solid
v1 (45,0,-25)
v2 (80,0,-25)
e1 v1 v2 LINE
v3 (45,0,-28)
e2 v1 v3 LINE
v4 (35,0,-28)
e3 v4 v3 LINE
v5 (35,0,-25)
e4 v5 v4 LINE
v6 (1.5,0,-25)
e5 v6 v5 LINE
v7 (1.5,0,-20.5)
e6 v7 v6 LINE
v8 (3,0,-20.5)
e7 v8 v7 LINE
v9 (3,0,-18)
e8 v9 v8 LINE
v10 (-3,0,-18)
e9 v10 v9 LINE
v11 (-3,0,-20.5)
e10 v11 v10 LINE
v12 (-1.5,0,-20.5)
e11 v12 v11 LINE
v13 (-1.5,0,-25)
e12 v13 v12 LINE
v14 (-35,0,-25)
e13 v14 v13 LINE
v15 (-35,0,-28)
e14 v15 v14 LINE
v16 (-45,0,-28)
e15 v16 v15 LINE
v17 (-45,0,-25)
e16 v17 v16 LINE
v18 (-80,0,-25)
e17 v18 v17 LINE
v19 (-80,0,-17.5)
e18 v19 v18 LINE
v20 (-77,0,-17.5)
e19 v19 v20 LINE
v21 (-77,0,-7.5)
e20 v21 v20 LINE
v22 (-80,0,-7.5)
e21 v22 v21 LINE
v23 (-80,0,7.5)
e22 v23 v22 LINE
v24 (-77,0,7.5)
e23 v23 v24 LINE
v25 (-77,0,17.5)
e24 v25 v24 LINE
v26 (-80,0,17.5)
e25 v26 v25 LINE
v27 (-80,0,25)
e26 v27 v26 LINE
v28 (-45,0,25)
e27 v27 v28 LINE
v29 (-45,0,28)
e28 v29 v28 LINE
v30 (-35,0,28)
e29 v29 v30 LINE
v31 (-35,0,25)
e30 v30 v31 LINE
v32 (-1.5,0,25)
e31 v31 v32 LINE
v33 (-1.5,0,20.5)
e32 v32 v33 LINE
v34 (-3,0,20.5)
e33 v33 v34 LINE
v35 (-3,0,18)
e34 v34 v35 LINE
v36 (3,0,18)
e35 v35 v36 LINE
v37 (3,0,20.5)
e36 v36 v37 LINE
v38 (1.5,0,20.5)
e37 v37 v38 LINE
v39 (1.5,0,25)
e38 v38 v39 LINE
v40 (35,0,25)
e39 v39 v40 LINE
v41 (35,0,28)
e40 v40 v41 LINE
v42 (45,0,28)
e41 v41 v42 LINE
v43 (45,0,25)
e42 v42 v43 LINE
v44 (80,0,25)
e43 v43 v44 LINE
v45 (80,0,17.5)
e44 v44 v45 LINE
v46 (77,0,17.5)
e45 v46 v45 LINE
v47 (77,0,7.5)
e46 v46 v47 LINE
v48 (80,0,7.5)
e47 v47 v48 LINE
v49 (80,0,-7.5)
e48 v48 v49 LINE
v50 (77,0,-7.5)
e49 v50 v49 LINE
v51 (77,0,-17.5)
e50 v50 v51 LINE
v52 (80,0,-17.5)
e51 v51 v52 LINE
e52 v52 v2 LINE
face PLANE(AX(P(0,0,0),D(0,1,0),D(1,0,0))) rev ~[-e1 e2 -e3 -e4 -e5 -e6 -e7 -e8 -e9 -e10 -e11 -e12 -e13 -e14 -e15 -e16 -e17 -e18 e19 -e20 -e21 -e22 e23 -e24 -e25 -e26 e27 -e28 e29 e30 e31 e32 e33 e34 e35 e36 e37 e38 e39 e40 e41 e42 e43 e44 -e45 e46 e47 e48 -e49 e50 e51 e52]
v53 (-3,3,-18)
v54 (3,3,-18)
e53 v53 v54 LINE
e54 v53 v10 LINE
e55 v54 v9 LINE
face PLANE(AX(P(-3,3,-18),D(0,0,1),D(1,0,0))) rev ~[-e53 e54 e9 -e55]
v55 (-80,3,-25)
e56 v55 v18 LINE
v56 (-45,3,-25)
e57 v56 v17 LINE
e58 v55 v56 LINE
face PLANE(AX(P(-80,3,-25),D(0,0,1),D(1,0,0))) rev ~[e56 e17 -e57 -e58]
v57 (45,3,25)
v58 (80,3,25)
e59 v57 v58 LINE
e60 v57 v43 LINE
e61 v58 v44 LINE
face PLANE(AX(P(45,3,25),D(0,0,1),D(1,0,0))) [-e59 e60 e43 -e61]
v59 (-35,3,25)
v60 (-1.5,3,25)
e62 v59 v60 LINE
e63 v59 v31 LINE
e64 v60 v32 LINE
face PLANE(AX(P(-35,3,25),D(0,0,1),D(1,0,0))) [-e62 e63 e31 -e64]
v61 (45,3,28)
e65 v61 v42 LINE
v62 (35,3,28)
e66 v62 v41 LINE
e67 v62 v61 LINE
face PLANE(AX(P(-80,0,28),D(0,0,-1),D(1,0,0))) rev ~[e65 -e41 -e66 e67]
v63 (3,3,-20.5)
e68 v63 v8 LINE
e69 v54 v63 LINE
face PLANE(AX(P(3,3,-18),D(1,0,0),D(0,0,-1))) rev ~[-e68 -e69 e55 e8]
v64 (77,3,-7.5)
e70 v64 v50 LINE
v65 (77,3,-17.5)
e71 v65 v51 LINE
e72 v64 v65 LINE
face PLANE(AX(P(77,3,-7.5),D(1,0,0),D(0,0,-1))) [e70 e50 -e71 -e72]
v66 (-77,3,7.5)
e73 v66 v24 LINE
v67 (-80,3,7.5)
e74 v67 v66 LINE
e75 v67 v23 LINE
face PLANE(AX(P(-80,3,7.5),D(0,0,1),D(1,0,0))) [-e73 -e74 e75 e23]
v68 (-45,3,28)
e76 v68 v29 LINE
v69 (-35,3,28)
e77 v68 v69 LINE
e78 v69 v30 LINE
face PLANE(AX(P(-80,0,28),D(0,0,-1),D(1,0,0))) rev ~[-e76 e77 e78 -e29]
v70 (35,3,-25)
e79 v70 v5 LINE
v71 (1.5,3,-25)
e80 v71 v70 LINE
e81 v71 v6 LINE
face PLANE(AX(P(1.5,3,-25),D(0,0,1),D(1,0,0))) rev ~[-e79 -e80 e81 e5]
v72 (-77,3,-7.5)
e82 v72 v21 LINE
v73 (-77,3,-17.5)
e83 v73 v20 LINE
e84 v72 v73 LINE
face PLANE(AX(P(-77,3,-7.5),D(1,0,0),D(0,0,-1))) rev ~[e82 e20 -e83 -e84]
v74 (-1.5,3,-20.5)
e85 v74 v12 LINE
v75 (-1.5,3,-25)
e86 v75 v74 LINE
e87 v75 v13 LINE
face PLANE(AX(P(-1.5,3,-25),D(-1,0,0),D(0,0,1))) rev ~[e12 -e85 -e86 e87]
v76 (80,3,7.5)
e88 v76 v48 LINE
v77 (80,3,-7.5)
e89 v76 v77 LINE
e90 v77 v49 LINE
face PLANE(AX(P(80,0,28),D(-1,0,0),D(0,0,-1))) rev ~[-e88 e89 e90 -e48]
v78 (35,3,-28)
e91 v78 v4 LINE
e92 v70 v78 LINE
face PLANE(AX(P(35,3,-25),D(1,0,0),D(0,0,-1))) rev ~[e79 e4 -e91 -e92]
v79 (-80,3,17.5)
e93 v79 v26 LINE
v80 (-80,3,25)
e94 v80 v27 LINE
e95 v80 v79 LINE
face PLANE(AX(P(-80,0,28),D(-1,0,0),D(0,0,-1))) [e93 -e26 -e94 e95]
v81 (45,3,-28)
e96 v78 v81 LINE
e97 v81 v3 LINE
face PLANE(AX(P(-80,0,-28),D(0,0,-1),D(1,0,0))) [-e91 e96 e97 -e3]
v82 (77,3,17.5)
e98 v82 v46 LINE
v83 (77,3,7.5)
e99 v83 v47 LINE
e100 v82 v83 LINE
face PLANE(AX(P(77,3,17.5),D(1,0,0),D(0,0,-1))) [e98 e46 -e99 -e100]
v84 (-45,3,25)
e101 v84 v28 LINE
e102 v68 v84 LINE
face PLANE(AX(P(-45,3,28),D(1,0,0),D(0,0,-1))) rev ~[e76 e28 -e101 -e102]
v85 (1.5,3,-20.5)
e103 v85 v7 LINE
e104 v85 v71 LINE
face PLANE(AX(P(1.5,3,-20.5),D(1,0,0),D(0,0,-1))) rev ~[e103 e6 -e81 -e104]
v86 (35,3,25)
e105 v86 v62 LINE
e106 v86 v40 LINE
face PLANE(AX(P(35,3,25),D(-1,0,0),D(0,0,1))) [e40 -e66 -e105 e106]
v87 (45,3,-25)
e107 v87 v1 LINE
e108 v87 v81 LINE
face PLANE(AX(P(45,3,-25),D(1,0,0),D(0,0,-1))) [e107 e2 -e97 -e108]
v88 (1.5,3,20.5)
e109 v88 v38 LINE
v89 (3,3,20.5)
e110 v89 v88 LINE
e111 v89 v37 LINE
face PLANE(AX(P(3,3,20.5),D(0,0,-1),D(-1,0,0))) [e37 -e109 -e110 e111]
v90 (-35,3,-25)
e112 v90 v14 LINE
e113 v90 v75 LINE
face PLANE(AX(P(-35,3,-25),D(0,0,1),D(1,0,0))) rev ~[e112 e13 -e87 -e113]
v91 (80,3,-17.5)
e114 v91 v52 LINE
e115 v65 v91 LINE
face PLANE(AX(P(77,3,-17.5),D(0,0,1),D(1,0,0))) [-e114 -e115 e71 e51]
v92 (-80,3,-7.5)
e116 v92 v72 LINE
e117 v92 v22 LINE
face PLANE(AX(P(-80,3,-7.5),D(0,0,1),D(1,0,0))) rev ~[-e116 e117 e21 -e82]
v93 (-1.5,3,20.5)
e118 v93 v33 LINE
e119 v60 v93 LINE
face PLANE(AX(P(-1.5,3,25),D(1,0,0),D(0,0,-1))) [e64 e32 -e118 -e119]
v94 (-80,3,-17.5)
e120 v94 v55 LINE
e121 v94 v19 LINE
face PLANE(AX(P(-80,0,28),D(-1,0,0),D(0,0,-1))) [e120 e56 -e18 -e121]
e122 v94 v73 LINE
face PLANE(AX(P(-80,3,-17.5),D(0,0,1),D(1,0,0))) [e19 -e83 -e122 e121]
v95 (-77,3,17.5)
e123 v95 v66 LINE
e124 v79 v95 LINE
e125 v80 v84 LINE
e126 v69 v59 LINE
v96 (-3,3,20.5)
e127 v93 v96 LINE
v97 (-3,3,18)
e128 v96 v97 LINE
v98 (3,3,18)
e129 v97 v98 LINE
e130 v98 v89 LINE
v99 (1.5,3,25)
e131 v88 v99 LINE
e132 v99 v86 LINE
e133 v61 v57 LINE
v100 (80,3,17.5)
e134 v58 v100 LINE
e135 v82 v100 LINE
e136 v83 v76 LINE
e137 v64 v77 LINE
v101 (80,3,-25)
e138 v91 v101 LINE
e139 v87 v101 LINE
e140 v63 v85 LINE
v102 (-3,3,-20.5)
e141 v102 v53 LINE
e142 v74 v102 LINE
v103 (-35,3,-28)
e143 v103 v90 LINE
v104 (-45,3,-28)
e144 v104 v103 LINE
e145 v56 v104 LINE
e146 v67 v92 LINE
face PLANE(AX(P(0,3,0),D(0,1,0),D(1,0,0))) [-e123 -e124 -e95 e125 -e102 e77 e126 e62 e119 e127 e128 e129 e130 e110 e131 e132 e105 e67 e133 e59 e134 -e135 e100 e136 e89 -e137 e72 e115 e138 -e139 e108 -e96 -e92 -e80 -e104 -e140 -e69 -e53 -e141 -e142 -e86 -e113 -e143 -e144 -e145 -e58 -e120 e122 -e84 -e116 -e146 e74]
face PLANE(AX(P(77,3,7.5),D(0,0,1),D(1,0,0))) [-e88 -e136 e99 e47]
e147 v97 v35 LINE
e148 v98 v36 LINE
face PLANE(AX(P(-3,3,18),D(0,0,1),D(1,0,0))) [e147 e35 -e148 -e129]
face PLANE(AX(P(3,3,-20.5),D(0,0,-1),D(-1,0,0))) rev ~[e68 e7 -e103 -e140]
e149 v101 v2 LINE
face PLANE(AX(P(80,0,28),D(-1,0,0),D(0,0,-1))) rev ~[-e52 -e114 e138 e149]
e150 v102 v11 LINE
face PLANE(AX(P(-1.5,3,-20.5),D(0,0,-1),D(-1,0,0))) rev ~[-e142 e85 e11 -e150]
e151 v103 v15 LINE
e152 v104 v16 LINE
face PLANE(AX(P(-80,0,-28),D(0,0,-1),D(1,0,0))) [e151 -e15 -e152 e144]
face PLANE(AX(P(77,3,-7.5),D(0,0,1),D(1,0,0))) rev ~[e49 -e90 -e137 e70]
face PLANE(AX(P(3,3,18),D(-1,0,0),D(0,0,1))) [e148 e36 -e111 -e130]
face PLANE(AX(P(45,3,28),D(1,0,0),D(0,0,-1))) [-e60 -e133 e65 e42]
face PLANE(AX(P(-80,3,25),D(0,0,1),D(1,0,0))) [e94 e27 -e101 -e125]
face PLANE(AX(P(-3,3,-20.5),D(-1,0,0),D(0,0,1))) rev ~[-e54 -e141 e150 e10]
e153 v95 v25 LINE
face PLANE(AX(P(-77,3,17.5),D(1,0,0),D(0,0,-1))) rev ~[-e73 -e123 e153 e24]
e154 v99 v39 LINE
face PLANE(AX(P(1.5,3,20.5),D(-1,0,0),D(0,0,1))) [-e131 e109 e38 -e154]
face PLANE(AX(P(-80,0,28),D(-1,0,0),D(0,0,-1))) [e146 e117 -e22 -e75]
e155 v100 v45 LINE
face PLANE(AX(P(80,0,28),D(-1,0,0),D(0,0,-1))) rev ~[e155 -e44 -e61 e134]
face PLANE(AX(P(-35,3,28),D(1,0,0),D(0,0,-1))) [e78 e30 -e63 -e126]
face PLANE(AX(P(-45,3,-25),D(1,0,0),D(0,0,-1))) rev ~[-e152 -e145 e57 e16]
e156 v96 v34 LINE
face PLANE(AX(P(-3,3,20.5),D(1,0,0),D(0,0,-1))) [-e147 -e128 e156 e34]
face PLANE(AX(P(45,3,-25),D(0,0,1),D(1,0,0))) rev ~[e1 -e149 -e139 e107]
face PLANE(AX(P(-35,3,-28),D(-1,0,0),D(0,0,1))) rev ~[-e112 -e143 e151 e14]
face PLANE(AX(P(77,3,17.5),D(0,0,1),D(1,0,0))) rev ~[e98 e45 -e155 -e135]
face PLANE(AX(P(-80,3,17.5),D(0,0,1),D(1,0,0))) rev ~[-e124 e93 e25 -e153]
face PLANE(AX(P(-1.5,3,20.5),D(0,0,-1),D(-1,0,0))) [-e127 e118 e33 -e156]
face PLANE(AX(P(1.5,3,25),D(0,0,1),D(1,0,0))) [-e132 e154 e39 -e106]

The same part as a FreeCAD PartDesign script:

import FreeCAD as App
import Part
import Sketcher

V = App.Vector

doc = App.newDocument("Part")
params = doc.addObject("Spreadsheet::Sheet", "Params")
for row, (alias, value) in enumerate([
    ("sketch1_width", "160 mm"),
    ("sketch1_height", "56 mm"),
    ("pad1_length", "3 mm"),
    ("sketch2_width", "3 mm"),
    ("sketch2_width2", "6 mm"),
    ("sketch2_width3", "70 mm"),
    ("sketch2_width4", "35 mm"),
    ("sketch2_height", "10 mm"),
], start=1):
    params.set(f"A{row}", alias)
    params.set(f"B{row}", "=" + value)
    params.setAlias(f"B{row}", alias)

body = doc.addObject("PartDesign::Body", "Body")

# Sketch on XZ plane
sketch1 = body.newObject("Sketcher::SketchObject", "Sketch")
sketch1.AttachmentSupport = (doc.getObject("XZ_Plane"), [""])
sketch1.MapMode = "FlatFace"
sketch1.addGeometry([
    Part.LineSegment(V(-80, -28, 0), V(-80, 28, 0)),
    Part.LineSegment(V(-80, 28, 0), V(80, 28, 0)),
    Part.LineSegment(V(80, 28, 0), V(80, -28, 0)),
    Part.LineSegment(V(80, -28, 0), V(-80, -28, 0)),
], False)
sketch1.addConstraint([
    Sketcher.Constraint("Coincident", 0, 2, 1, 1),
    Sketcher.Constraint("Coincident", 1, 2, 2, 1),
    Sketcher.Constraint("Coincident", 2, 2, 3, 1),
    Sketcher.Constraint("Coincident", 3, 2, 0, 1),
    Sketcher.Constraint("Vertical", 0),
    Sketcher.Constraint("Horizontal", 1),
    Sketcher.Constraint("Vertical", 2),
    Sketcher.Constraint("Horizontal", 3),
    Sketcher.Constraint("Symmetric", 0, 2, 2, 2, -1, 1),
    Sketcher.Constraint("DistanceX", 1, 1, 1, 2, 160.0),
    Sketcher.Constraint("DistanceY", 0, 1, 0, 2, 56.0),
])
sketch1.setExpression("Constraints[9]", "Params.sketch1_width")
sketch1.setExpression("Constraints[10]", "Params.sketch1_height")
pad1 = body.newObject("PartDesign::Pad", "Pad")
pad1.Profile = sketch1
pad1.setExpression("Length", "Params.pad1_length")
pad1.Reversed = True

# Sketch on XZ plane
sketch2 = body.newObject("Sketcher::SketchObject", "Sketch001")
sketch2.AttachmentSupport = (doc.getObject("XZ_Plane"), [""])
sketch2.MapMode = "FlatFace"
sketch2.AttachmentOffset = App.Placement(V(0, 0, -3), App.Rotation())
sketch2.addGeometry([
    Part.LineSegment(V(-80, -17.5, 0), V(-80, -7.5, 0)),  # 0
    Part.LineSegment(V(-80, -7.5, 0), V(-77, -7.5, 0)),  # 1
    Part.LineSegment(V(-77, -7.5, 0), V(-77, -17.5, 0)),  # 2
    Part.LineSegment(V(-77, -17.5, 0), V(-80, -17.5, 0)),  # 3
    Part.LineSegment(V(-35, -28, 0), V(-35, -25, 0)),  # 4
    Part.LineSegment(V(-35, -25, 0), V(-1.5, -25, 0)),  # 5
    Part.LineSegment(V(-1.5, -25, 0), V(-1.5, -20.5, 0)),  # 6
    Part.LineSegment(V(-1.5, -20.5, 0), V(-3, -20.5, 0)),  # 7
    Part.LineSegment(V(-3, -20.5, 0), V(-3, -18, 0)),  # 8
    Part.LineSegment(V(-3, -18, 0), V(3, -18, 0)),  # 9
    Part.LineSegment(V(3, -18, 0), V(3, -20.5, 0)),  # 10
    Part.LineSegment(V(3, -20.5, 0), V(1.5, -20.5, 0)),  # 11
    Part.LineSegment(V(1.5, -20.5, 0), V(1.5, -25, 0)),  # 12
    Part.LineSegment(V(1.5, -25, 0), V(35, -25, 0)),  # 13
    Part.LineSegment(V(35, -25, 0), V(35, -28, 0)),  # 14
    Part.LineSegment(V(35, -28, 0), V(-35, -28, 0)),  # 15
    Part.LineSegment(V(-80, -28, 0), V(-80, -25, 0)),  # 16
    Part.LineSegment(V(-80, -25, 0), V(-45, -25, 0)),  # 17
    Part.LineSegment(V(-45, -25, 0), V(-45, -28, 0)),  # 18
    Part.LineSegment(V(-45, -28, 0), V(-80, -28, 0)),  # 19
    Part.LineSegment(V(45, -28, 0), V(45, -25, 0)),  # 20
    Part.LineSegment(V(45, -25, 0), V(80, -25, 0)),  # 21
    Part.LineSegment(V(80, -25, 0), V(80, -28, 0)),  # 22
    Part.LineSegment(V(80, -28, 0), V(45, -28, 0)),  # 23
    Part.LineSegment(V(77, -17.5, 0), V(77, -7.5, 0)),  # 24
    Part.LineSegment(V(77, -7.5, 0), V(80, -7.5, 0)),  # 25
    Part.LineSegment(V(80, -7.5, 0), V(80, -17.5, 0)),  # 26
    Part.LineSegment(V(80, -17.5, 0), V(77, -17.5, 0)),  # 27
    Part.LineSegment(V(77, 7.5, 0), V(77, 17.5, 0)),  # 28
    Part.LineSegment(V(77, 17.5, 0), V(80, 17.5, 0)),  # 29
    Part.LineSegment(V(80, 17.5, 0), V(80, 7.5, 0)),  # 30
    Part.LineSegment(V(80, 7.5, 0), V(77, 7.5, 0)),  # 31
    Part.LineSegment(V(45, 25, 0), V(45, 28, 0)),  # 32
    Part.LineSegment(V(45, 28, 0), V(80, 28, 0)),  # 33
    Part.LineSegment(V(80, 28, 0), V(80, 25, 0)),  # 34
    Part.LineSegment(V(80, 25, 0), V(45, 25, 0)),  # 35
    Part.LineSegment(V(-35, 28, 0), V(35, 28, 0)),  # 36
    Part.LineSegment(V(35, 28, 0), V(35, 25, 0)),  # 37
    Part.LineSegment(V(35, 25, 0), V(1.5, 25, 0)),  # 38
    Part.LineSegment(V(1.5, 25, 0), V(1.5, 20.5, 0)),  # 39
    Part.LineSegment(V(1.5, 20.5, 0), V(3, 20.5, 0)),  # 40
    Part.LineSegment(V(3, 20.5, 0), V(3, 18, 0)),  # 41
    Part.LineSegment(V(3, 18, 0), V(-3, 18, 0)),  # 42
    Part.LineSegment(V(-3, 18, 0), V(-3, 20.5, 0)),  # 43
    Part.LineSegment(V(-3, 20.5, 0), V(-1.5, 20.5, 0)),  # 44
    Part.LineSegment(V(-1.5, 20.5, 0), V(-1.5, 25, 0)),  # 45
    Part.LineSegment(V(-1.5, 25, 0), V(-35, 25, 0)),  # 46
    Part.LineSegment(V(-35, 25, 0), V(-35, 28, 0)),  # 47
    Part.LineSegment(V(-80, 25, 0), V(-80, 28, 0)),  # 48
    Part.LineSegment(V(-80, 28, 0), V(-45, 28, 0)),  # 49
    Part.LineSegment(V(-45, 28, 0), V(-45, 25, 0)),  # 50
    Part.LineSegment(V(-45, 25, 0), V(-80, 25, 0)),  # 51
    Part.LineSegment(V(-80, 7.5, 0), V(-80, 17.5, 0)),  # 52
    Part.LineSegment(V(-80, 17.5, 0), V(-77, 17.5, 0)),  # 53
    Part.LineSegment(V(-77, 17.5, 0), V(-77, 7.5, 0)),  # 54
    Part.LineSegment(V(-77, 7.5, 0), V(-80, 7.5, 0)),  # 55
], False)
sketch2.addConstraint([
    Sketcher.Constraint("Coincident", 0, 2, 1, 1),
    Sketcher.Constraint("Coincident", 1, 2, 2, 1),
    Sketcher.Constraint("Coincident", 2, 2, 3, 1),
    Sketcher.Constraint("Coincident", 3, 2, 0, 1),
    Sketcher.Constraint("Coincident", 4, 2, 5, 1),
    Sketcher.Constraint("Coincident", 5, 2, 6, 1),
    Sketcher.Constraint("Coincident", 6, 2, 7, 1),
    Sketcher.Constraint("Coincident", 7, 2, 8, 1),
    Sketcher.Constraint("Coincident", 8, 2, 9, 1),
    Sketcher.Constraint("Coincident", 9, 2, 10, 1),
    Sketcher.Constraint("Coincident", 10, 2, 11, 1),
    Sketcher.Constraint("Coincident", 11, 2, 12, 1),
    Sketcher.Constraint("Coincident", 12, 2, 13, 1),
    Sketcher.Constraint("Coincident", 13, 2, 14, 1),
    Sketcher.Constraint("Coincident", 14, 2, 15, 1),
    Sketcher.Constraint("Coincident", 15, 2, 4, 1),
    Sketcher.Constraint("Coincident", 16, 2, 17, 1),
    Sketcher.Constraint("Coincident", 17, 2, 18, 1),
    Sketcher.Constraint("Coincident", 18, 2, 19, 1),
    Sketcher.Constraint("Coincident", 19, 2, 16, 1),
    Sketcher.Constraint("Coincident", 20, 2, 21, 1),
    Sketcher.Constraint("Coincident", 21, 2, 22, 1),
    Sketcher.Constraint("Coincident", 22, 2, 23, 1),
    Sketcher.Constraint("Coincident", 23, 2, 20, 1),
    Sketcher.Constraint("Coincident", 24, 2, 25, 1),
    Sketcher.Constraint("Coincident", 25, 2, 26, 1),
    Sketcher.Constraint("Coincident", 26, 2, 27, 1),
    Sketcher.Constraint("Coincident", 27, 2, 24, 1),
    Sketcher.Constraint("Coincident", 28, 2, 29, 1),
    Sketcher.Constraint("Coincident", 29, 2, 30, 1),
    Sketcher.Constraint("Coincident", 30, 2, 31, 1),
    Sketcher.Constraint("Coincident", 31, 2, 28, 1),
    Sketcher.Constraint("Coincident", 32, 2, 33, 1),
    Sketcher.Constraint("Coincident", 33, 2, 34, 1),
    Sketcher.Constraint("Coincident", 34, 2, 35, 1),
    Sketcher.Constraint("Coincident", 35, 2, 32, 1),
    Sketcher.Constraint("Coincident", 36, 2, 37, 1),
    Sketcher.Constraint("Coincident", 37, 2, 38, 1),
    Sketcher.Constraint("Coincident", 38, 2, 39, 1),
    Sketcher.Constraint("Coincident", 39, 2, 40, 1),
    Sketcher.Constraint("Coincident", 40, 2, 41, 1),
    Sketcher.Constraint("Coincident", 41, 2, 42, 1),
    Sketcher.Constraint("Coincident", 42, 2, 43, 1),
    Sketcher.Constraint("Coincident", 43, 2, 44, 1),
    Sketcher.Constraint("Coincident", 44, 2, 45, 1),
    Sketcher.Constraint("Coincident", 45, 2, 46, 1),
    Sketcher.Constraint("Coincident", 46, 2, 47, 1),
    Sketcher.Constraint("Coincident", 47, 2, 36, 1),
    Sketcher.Constraint("Coincident", 48, 2, 49, 1),
    Sketcher.Constraint("Coincident", 49, 2, 50, 1),
    Sketcher.Constraint("Coincident", 50, 2, 51, 1),
    Sketcher.Constraint("Coincident", 51, 2, 48, 1),
    Sketcher.Constraint("Coincident", 52, 2, 53, 1),
    Sketcher.Constraint("Coincident", 53, 2, 54, 1),
    Sketcher.Constraint("Coincident", 54, 2, 55, 1),
    Sketcher.Constraint("Coincident", 55, 2, 52, 1),
    Sketcher.Constraint("Vertical", 0),
    Sketcher.Constraint("Horizontal", 1),
    Sketcher.Constraint("Vertical", 2),
    Sketcher.Constraint("Horizontal", 3),
    Sketcher.Constraint("Vertical", 4),
    Sketcher.Constraint("Horizontal", 5),
    Sketcher.Constraint("Vertical", 6),
    Sketcher.Constraint("Horizontal", 7),
    Sketcher.Constraint("Vertical", 8),
    Sketcher.Constraint("Horizontal", 9),
    Sketcher.Constraint("Vertical", 10),
    Sketcher.Constraint("Horizontal", 11),
    Sketcher.Constraint("Vertical", 12),
    Sketcher.Constraint("Horizontal", 13),
    Sketcher.Constraint("Vertical", 14),
    Sketcher.Constraint("Horizontal", 15),
    Sketcher.Constraint("Vertical", 16),
    Sketcher.Constraint("Horizontal", 17),
    Sketcher.Constraint("Vertical", 18),
    Sketcher.Constraint("Horizontal", 19),
    Sketcher.Constraint("Vertical", 20),
    Sketcher.Constraint("Horizontal", 21),
    Sketcher.Constraint("Vertical", 22),
    Sketcher.Constraint("Horizontal", 23),
    Sketcher.Constraint("Vertical", 24),
    Sketcher.Constraint("Horizontal", 25),
    Sketcher.Constraint("Vertical", 26),
    Sketcher.Constraint("Horizontal", 27),
    Sketcher.Constraint("Vertical", 28),
    Sketcher.Constraint("Horizontal", 29),
    Sketcher.Constraint("Vertical", 30),
    Sketcher.Constraint("Horizontal", 31),
    Sketcher.Constraint("Vertical", 32),
    Sketcher.Constraint("Horizontal", 33),
    Sketcher.Constraint("Vertical", 34),
    Sketcher.Constraint("Horizontal", 35),
    Sketcher.Constraint("Horizontal", 36),
    Sketcher.Constraint("Vertical", 37),
    Sketcher.Constraint("Horizontal", 38),
    Sketcher.Constraint("Vertical", 39),
    Sketcher.Constraint("Horizontal", 40),
    Sketcher.Constraint("Vertical", 41),
    Sketcher.Constraint("Horizontal", 42),
    Sketcher.Constraint("Vertical", 43),
    Sketcher.Constraint("Horizontal", 44),
    Sketcher.Constraint("Vertical", 45),
    Sketcher.Constraint("Horizontal", 46),
    Sketcher.Constraint("Vertical", 47),
    Sketcher.Constraint("Vertical", 48),
    Sketcher.Constraint("Horizontal", 49),
    Sketcher.Constraint("Vertical", 50),
    Sketcher.Constraint("Horizontal", 51),
    Sketcher.Constraint("Vertical", 52),
    Sketcher.Constraint("Horizontal", 53),
    Sketcher.Constraint("Vertical", 54),
    Sketcher.Constraint("Horizontal", 55),
    Sketcher.Constraint("Symmetric", 2, 2, 28, 2, -1, 1),
    Sketcher.Constraint("Symmetric", 0, 2, 30, 2, -1, 1),
    Sketcher.Constraint("Symmetric", 18, 2, 32, 2, -1, 1),
    Sketcher.Constraint("Symmetric", 16, 2, 34, 2, -1, 1),
    Sketcher.Constraint("Symmetric", 15, 2, 36, 2, -1, 1),
    Sketcher.Constraint("Symmetric", 5, 2, 38, 2, -1, 1),
    Sketcher.Constraint("Symmetric", 7, 2, 40, 2, -1, 1),
    Sketcher.Constraint("Symmetric", 9, 2, 42, 2, -1, 1),
    Sketcher.Constraint("Symmetric", 11, 2, 44, 2, -1, 1),
    Sketcher.Constraint("Symmetric", 13, 2, 46, 2, -1, 1),
    Sketcher.Constraint("Symmetric", 22, 2, 48, 2, -1, 1),
    Sketcher.Constraint("Symmetric", 20, 2, 50, 2, -1, 1),
    Sketcher.Constraint("Symmetric", 26, 2, 52, 2, -1, 1),
    Sketcher.Constraint("Symmetric", 24, 2, 54, 2, -1, 1),
    Sketcher.Constraint("Symmetric", 7, 2, 10, 2, -2),
    Sketcher.Constraint("Symmetric", 5, 2, 12, 2, -2),
    Sketcher.Constraint("Symmetric", 17, 2, 20, 2, -2),
    Sketcher.Constraint("Symmetric", 19, 2, 22, 2, -2),
    Sketcher.Constraint("Symmetric", 1, 2, 24, 2, -2),
    Sketcher.Constraint("Symmetric", 3, 2, 26, 2, -2),
    Sketcher.Constraint("Horizontal", 13, 2, 16, 2),
    Sketcher.Constraint("Horizontal", 15, 2, 18, 2),
    Sketcher.Constraint("Vertical", 3, 2, 16, 2),
    Sketcher.Constraint("Vertical", 14, 2, 36, 2),
    Sketcher.Constraint("Equal", 55, 4),
    Sketcher.Constraint("DistanceX", 1, 1, 1, 2, 3.0),
    Sketcher.Constraint("DistanceX", 9, 1, 9, 2, 6.0),
    Sketcher.Constraint("DistanceX", 15, 2, 15, 1, 70.0),
    Sketcher.Constraint("DistanceX", 17, 1, 17, 2, 35.0),
    Sketcher.Constraint("DistanceY", 0, 1, 0, 2, 10.0),
    Sketcher.Constraint("DistanceX", 5, 1, 5, 2, 33.5),
    Sketcher.Constraint("DistanceY", 6, 1, 6, 2, 4.5),
    Sketcher.Constraint("DistanceY", 8, 1, 8, 2, 2.5),
    Sketcher.Constraint("DistanceX", 0, 2, -1, 1, 80.0),
    Sketcher.Constraint("DistanceY", 4, 2, -1, 1, 25.0),
    Sketcher.Constraint("DistanceY", 6, 2, 2, 2, 3.0),
])
sketch2.setExpression("Constraints[137]", "Params.sketch2_width")
sketch2.setExpression("Constraints[138]", "Params.sketch2_width2")
sketch2.setExpression("Constraints[139]", "Params.sketch2_width3")
sketch2.setExpression("Constraints[140]", "Params.sketch2_width4")
sketch2.setExpression("Constraints[141]", "Params.sketch2_height")
pocket1 = body.newObject("PartDesign::Pocket", "Pocket")
pocket1.Profile = sketch2
pocket1.Type = "ThroughAll"
pocket1.Reversed = True

doc.recompute()
